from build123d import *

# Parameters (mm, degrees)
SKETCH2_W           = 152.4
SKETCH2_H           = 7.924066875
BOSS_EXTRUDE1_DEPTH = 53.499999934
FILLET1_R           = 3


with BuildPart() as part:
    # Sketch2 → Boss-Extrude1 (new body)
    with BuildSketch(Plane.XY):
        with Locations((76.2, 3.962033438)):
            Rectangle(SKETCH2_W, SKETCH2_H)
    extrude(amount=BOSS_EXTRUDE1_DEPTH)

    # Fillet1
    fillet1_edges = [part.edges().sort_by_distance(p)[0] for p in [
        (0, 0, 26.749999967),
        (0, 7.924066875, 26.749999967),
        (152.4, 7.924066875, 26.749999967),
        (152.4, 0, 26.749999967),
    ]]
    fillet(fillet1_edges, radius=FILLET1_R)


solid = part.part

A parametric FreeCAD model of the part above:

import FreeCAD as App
import Part
import Sketcher
from FreeCAD import Vector


def edges_at(feature, points):
    """Names of the edges that pass closest to the given points."""
    edges = feature.Shape.Edges
    near = lambda p: min(range(len(edges)), key=lambda i: edges[i].distToShape(Part.Vertex(*p))[0])
    return sorted({f"Edge{near(p) + 1}" for p in points})

doc = App.newDocument("Part")
body = doc.addObject("PartDesign::Body", "Body")

sketch1 = body.newObject("Sketcher::SketchObject", "Sketch")
sketch1.AttachmentSupport = (doc.getObject("XY_Plane"), [""])
sketch1.MapMode = "FlatFace"
sketch1.addGeometry(Part.LineSegment(Vector(0, 8, 0), Vector(0, 0, 0)), False)
sketch1.addGeometry(Part.LineSegment(Vector(0, 0, 0), Vector(152, 0, 0)), False)
sketch1.addGeometry(Part.LineSegment(Vector(152, 0, 0), Vector(152, 8, 0)), False)
sketch1.addGeometry(Part.LineSegment(Vector(152, 8, 0), Vector(0, 8, 0)), False)
sketch1.addConstraint(Sketcher.Constraint("Coincident", 0, 2, 1, 1))
sketch1.addConstraint(Sketcher.Constraint("Coincident", 1, 2, 2, 1))
sketch1.addConstraint(Sketcher.Constraint("Coincident", 2, 2, 3, 1))
sketch1.addConstraint(Sketcher.Constraint("Coincident", 3, 2, 0, 1))
sketch1.addConstraint(Sketcher.Constraint("Vertical", 0))
sketch1.addConstraint(Sketcher.Constraint("Horizontal", 1))
sketch1.addConstraint(Sketcher.Constraint("Vertical", 2))
sketch1.addConstraint(Sketcher.Constraint("Horizontal", 3))
sketch1.addConstraint(Sketcher.Constraint("Coincident", 0, 2, -1, 1))
sketch1.addConstraint(Sketcher.Constraint("DistanceX", 1, 1, 1, 2, 152.4))
sketch1.addConstraint(Sketcher.Constraint("DistanceY", 0, 2, 0, 1, 7.924067))
pad1 = body.newObject("PartDesign::Pad", "Pad")
pad1.Profile = sketch1
pad1.Length = 53.5
doc.recompute()

fillet = body.newObject("PartDesign::Fillet", "Fillet")
fillet.Base = (pad1, edges_at(pad1, [
    (0, 0, 26.75),
    (0, 7.924, 26.75),
    (152.4, 7.924, 26.75),
    (152.4, 0, 26.75),
]))
fillet.Radius = 3

doc.recompute()
